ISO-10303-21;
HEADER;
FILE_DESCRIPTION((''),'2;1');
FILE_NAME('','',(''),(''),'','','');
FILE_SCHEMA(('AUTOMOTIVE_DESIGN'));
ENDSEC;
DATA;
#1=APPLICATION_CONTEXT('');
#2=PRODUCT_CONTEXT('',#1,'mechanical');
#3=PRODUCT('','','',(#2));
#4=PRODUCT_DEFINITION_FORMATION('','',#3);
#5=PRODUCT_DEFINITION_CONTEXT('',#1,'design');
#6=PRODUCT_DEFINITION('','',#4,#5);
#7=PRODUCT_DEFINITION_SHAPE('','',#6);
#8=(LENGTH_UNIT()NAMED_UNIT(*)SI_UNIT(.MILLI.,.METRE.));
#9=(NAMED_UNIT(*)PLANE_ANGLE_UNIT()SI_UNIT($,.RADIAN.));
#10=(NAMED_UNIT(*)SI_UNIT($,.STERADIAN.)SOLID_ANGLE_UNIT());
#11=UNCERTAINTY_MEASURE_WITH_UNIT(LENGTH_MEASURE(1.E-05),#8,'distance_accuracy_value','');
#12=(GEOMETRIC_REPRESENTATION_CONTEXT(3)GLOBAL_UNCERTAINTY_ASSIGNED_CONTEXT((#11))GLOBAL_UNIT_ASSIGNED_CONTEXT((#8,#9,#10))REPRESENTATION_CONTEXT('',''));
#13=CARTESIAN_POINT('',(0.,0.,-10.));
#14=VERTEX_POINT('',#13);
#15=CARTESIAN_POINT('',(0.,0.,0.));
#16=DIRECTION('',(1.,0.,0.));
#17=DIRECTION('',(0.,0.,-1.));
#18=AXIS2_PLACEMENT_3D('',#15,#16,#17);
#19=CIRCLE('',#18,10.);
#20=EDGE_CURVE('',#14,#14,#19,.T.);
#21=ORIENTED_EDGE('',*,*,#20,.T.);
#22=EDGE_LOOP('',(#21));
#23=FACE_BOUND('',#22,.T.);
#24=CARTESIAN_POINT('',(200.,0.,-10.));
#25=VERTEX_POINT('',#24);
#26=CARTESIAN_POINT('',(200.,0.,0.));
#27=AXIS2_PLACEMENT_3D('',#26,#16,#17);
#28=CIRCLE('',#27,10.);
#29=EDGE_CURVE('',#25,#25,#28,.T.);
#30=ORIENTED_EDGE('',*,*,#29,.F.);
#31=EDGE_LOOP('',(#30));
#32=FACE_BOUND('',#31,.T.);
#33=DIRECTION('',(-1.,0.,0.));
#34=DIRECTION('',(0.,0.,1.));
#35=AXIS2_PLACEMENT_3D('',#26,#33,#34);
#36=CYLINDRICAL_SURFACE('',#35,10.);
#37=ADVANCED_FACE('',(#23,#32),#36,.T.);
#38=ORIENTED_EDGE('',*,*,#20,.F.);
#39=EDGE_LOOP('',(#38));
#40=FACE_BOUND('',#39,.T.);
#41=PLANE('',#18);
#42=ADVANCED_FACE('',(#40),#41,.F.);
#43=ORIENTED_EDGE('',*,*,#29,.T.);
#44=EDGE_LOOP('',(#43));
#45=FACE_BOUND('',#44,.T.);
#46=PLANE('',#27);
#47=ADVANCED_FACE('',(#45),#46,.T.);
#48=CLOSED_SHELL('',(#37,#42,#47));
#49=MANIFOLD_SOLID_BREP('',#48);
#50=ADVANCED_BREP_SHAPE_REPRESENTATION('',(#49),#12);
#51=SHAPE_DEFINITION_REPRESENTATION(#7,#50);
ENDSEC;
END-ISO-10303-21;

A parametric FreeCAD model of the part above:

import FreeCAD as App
import Part
import Sketcher

V = App.Vector

doc = App.newDocument("Part")
params = doc.addObject("Spreadsheet::Sheet", "Params")
for row, (alias, value) in enumerate([
    ("sketch1_diameter", "20 mm"),
    ("pad1_length", "200 mm"),
], start=1):
    params.set(f"A{row}", alias)
    params.set(f"B{row}", "=" + value)
    params.setAlias(f"B{row}", alias)

body = doc.addObject("PartDesign::Body", "Body")

# Sketch on YZ plane
sketch1 = doc.addObject("Sketcher::SketchObject", "Sketch")
body.addObject(sketch1)
sketch1.AttachmentSupport = (doc.YZ_Plane, [""])
sketch1.MapMode = "FlatFace"
sketch1.addGeometry(Part.Circle(V(0, 0, 0), V(0, 0, 1), 10), False)
sketch1.addConstraint([
    Sketcher.Constraint("Coincident", 0, 3, -1, 1),
    Sketcher.Constraint("Diameter", 0, 20.0),
])
sketch1.setExpression("Constraints[1]", "Params.sketch1_diameter")
pad1 = doc.addObject("PartDesign::Pad", "Pad")
body.addObject(pad1)
pad1.Profile = sketch1
pad1.setExpression("Length", "Params.pad1_length")

doc.recompute()
